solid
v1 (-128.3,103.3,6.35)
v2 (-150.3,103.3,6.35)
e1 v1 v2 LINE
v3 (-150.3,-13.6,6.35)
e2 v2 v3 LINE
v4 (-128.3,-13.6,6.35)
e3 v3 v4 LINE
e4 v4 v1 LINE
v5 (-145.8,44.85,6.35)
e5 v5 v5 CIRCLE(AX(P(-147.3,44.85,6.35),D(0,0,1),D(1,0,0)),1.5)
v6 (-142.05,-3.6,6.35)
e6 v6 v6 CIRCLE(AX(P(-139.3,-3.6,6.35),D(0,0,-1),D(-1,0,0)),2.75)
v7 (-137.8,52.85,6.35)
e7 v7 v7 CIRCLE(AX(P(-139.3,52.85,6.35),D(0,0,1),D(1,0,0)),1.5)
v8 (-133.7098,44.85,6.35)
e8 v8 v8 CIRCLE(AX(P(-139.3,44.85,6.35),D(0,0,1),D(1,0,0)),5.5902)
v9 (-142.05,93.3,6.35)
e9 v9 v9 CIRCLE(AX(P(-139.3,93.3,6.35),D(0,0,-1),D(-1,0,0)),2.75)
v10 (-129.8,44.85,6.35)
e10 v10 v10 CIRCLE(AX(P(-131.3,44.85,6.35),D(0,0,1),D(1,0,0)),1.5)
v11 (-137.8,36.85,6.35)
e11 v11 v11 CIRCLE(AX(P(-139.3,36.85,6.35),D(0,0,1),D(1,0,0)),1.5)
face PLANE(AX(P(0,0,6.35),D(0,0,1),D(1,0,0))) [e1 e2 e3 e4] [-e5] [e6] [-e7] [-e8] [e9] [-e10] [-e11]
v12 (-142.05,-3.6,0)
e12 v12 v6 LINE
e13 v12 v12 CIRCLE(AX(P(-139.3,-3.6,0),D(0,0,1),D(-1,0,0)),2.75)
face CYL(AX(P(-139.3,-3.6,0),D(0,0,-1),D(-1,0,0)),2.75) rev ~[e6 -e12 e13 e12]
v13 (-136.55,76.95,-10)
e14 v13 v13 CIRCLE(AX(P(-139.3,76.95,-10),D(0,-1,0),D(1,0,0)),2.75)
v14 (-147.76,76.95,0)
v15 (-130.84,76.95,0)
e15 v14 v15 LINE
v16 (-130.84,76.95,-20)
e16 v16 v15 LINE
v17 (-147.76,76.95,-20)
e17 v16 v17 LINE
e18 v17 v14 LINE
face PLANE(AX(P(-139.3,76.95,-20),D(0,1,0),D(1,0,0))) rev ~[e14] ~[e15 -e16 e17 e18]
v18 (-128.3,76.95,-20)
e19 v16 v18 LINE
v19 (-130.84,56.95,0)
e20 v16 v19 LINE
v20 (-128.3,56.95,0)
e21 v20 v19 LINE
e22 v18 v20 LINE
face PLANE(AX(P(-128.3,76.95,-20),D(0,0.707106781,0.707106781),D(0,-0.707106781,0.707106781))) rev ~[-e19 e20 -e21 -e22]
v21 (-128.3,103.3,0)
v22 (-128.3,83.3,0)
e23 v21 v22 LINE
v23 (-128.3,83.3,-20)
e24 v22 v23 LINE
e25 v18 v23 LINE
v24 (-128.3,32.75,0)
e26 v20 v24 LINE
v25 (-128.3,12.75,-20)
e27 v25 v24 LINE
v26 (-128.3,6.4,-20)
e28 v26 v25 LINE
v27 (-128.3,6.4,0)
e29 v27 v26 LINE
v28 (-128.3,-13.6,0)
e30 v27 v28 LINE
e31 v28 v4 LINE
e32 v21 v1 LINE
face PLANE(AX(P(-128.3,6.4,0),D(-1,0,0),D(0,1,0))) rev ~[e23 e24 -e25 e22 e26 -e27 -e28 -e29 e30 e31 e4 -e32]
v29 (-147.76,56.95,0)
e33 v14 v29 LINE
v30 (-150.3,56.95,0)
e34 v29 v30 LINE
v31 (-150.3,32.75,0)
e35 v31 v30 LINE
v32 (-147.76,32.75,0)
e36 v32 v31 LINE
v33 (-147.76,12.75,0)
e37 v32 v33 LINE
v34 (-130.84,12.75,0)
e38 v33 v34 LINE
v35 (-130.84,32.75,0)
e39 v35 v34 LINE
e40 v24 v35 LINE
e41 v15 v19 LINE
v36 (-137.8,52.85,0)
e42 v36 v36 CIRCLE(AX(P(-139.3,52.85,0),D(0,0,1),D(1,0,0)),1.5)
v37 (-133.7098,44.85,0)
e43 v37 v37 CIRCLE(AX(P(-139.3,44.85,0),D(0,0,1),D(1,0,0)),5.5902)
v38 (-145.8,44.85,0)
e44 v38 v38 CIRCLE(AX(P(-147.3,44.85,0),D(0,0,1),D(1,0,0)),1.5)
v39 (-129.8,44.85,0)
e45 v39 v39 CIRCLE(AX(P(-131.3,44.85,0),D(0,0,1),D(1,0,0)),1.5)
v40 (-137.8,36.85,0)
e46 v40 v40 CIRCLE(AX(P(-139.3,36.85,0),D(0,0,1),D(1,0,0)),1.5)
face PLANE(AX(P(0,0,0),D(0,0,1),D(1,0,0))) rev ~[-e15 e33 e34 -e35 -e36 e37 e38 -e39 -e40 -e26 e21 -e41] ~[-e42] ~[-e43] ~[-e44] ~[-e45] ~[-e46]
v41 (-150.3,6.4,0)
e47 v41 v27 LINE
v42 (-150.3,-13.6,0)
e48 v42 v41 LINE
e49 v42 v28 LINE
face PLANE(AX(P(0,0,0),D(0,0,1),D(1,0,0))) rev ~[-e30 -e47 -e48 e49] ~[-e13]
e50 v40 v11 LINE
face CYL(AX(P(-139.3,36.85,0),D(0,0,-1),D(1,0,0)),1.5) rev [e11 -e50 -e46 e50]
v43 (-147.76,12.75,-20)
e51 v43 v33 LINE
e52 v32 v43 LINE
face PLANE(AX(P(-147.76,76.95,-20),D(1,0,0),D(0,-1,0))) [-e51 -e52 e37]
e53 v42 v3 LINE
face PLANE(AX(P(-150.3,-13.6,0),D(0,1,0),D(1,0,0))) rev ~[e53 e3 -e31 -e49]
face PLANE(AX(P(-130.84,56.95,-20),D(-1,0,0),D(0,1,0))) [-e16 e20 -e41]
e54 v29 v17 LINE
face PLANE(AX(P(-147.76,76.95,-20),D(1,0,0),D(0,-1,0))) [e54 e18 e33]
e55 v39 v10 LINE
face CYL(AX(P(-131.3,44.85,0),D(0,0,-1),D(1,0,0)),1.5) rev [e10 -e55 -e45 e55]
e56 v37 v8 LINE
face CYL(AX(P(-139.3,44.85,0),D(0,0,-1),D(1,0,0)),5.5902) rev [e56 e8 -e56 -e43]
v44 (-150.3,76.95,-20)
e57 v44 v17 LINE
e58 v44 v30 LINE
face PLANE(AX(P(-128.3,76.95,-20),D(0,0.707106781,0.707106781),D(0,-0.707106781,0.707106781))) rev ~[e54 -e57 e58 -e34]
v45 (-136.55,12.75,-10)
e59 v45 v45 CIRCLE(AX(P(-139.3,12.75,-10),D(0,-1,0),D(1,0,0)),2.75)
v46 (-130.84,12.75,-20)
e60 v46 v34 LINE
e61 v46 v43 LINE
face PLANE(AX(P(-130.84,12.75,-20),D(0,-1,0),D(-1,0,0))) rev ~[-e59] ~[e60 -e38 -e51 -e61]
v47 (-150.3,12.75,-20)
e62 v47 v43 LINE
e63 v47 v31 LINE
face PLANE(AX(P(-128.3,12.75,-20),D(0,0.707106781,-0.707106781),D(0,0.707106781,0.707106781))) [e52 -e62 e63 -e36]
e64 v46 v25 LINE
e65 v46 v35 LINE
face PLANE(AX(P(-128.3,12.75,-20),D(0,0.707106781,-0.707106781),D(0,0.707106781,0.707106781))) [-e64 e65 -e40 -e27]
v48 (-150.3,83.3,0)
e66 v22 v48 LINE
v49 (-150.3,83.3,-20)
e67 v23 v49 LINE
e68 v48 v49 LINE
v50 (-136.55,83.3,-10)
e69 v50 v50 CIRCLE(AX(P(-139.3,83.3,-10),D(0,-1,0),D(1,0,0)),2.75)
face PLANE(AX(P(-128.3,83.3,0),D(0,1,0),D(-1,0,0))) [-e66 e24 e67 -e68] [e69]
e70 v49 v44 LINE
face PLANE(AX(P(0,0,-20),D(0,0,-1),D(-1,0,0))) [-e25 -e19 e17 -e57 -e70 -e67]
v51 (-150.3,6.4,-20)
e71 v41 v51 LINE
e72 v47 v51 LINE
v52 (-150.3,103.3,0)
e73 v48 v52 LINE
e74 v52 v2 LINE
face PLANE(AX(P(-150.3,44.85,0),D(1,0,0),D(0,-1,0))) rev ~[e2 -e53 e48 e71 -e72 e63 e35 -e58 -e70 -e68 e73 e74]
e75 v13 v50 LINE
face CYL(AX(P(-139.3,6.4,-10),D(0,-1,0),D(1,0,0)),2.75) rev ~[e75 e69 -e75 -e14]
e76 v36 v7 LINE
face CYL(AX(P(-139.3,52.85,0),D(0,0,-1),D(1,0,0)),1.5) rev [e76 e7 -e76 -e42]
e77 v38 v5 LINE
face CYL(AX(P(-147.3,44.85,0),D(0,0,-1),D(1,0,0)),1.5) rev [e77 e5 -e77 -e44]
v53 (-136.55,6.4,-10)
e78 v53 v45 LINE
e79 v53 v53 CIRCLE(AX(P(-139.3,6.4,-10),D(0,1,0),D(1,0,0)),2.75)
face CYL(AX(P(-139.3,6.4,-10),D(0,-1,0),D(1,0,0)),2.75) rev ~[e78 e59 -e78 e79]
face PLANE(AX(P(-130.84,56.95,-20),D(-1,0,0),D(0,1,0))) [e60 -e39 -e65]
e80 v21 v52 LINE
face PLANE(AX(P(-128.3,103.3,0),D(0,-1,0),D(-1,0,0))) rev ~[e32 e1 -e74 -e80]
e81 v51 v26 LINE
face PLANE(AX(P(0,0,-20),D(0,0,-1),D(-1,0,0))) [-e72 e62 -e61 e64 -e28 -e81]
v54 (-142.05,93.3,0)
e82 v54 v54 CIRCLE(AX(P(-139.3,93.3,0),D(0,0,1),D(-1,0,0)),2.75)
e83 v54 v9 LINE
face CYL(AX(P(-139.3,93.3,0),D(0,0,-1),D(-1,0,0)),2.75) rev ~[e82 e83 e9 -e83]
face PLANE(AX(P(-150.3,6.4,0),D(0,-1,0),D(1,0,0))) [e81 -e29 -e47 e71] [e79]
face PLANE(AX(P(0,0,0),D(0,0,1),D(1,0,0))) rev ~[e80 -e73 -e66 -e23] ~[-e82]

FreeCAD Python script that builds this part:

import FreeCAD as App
import Part
import Sketcher
Q = App.Units.Quantity


def add_polygon(sketch, points):
    """Adds a closed chain of lines whose ends are joined by coincident constraints."""
    first, n = sketch.GeometryCount, len(points)
    for a, b in zip(points, points[1:] + points[:1]):
        sketch.addGeometry(Part.LineSegment(App.Vector(*a, 0), App.Vector(*b, 0)), False)
    for i in range(n):
        sketch.addConstraint(Sketcher.Constraint("Coincident", first + i, 2, first + (i + 1) % n, 1))

doc = App.newDocument("Part")
body = doc.addObject("PartDesign::Body", "Body")

sketch1 = body.newObject("Sketcher::SketchObject", "Sketch")
sketch1.AttachmentSupport = (doc.getObject("XY_Plane"), [""])
sketch1.MapMode = "FlatFace"
add_polygon(sketch1, [(-128.3, 103.3), (-150.3, 103.3), (-150.3, -13.6), (-128.3, -13.6)])
sketch1.addGeometry(Part.Circle(App.Vector(-139.3, 36.9, 0), App.Vector(0, 0, 1), 1.5), False)
sketch1.addGeometry(Part.Circle(App.Vector(-147.3, 44.9, 0), App.Vector(0, 0, 1), 1.5), False)
sketch1.addGeometry(Part.Circle(App.Vector(-139.3, 44.9, 0), App.Vector(0, 0, 1), 5.6), False)
sketch1.addGeometry(Part.Circle(App.Vector(-131.3, 44.9, 0), App.Vector(0, 0, 1), 1.5), False)
sketch1.addGeometry(Part.Circle(App.Vector(-139.3, 52.9, 0), App.Vector(0, 0, 1), 1.5), False)
sketch1.addConstraint(Sketcher.Constraint("Horizontal", 0))
sketch1.addConstraint(Sketcher.Constraint("Vertical", 1))
sketch1.addConstraint(Sketcher.Constraint("Horizontal", 2))
sketch1.addConstraint(Sketcher.Constraint("Vertical", 3))
sketch1.addConstraint(Sketcher.Constraint("Equal", 4, 5))
sketch1.addConstraint(Sketcher.Constraint("Equal", 5, 7))
sketch1.addConstraint(Sketcher.Constraint("Equal", 7, 8))
sketch1.addConstraint(Sketcher.Constraint("Horizontal", 5, 3, 6, 3))
sketch1.addConstraint(Sketcher.Constraint("Horizontal", 6, 3, 7, 3))
sketch1.addConstraint(Sketcher.Constraint("Vertical", 4, 3, 6, 3))
sketch1.addConstraint(Sketcher.Constraint("Vertical", 6, 3, 8, 3))
sketch1.addConstraint(Sketcher.Constraint("Diameter", 4, Q("3 mm")))
sketch1.addConstraint(Sketcher.Constraint("DistanceX", 0, 2, 0, 1, Q("22 mm")))
sketch1.addConstraint(Sketcher.Constraint("DistanceY", 1, 2, 1, 1, Q("116.9 mm")))
sketch1.addConstraint(Sketcher.Constraint("DistanceX", 5, 3, 4, 3, Q("8 mm")))
sketch1.addConstraint(Sketcher.Constraint("DistanceY", 4, 3, 5, 3, Q("8 mm")))
sketch1.addConstraint(Sketcher.Constraint("DistanceX", 6, 3, 7, 3, Q("8 mm")))
sketch1.addConstraint(Sketcher.Constraint("DistanceY", 6, 3, 8, 3, Q("8 mm")))
sketch1.addConstraint(Sketcher.Constraint("DistanceX", 0, 2, 8, 3, Q("11 mm")))
sketch1.addConstraint(Sketcher.Constraint("Diameter", 6, Q("11.1804 mm")))
sketch1.addConstraint(Sketcher.Constraint("DistanceX", 4, 3, -1, 1, Q("139.3 mm")))
sketch1.addConstraint(Sketcher.Constraint("DistanceY", -1, 1, 0, 2, Q("103.3 mm")))
sketch1.addConstraint(Sketcher.Constraint("DistanceY", -1, 1, 4, 3, Q("36.85 mm")))
pad1 = body.newObject("PartDesign::Pad", "Pad")
pad1.Profile = sketch1
pad1.Length = 6.35

sketch2 = body.newObject("Sketcher::SketchObject", "Sketch001")
sketch2.AttachmentSupport = (doc.getObject("XY_Plane"), [""])
sketch2.MapMode = "FlatFace"
add_polygon(sketch2, [(-128, 13), (-128, 6), (-150, 6), (-150, 13)])
add_polygon(sketch2, [(-128, 83), (-128, 77), (-150, 77), (-150, 83)])
sketch2.addConstraint(Sketcher.Constraint("Vertical", 0))
sketch2.addConstraint(Sketcher.Constraint("Horizontal", 1))
sketch2.addConstraint(Sketcher.Constraint("Vertical", 2))
sketch2.addConstraint(Sketcher.Constraint("Horizontal", 3))
sketch2.addConstraint(Sketcher.Constraint("Vertical", 4))
sketch2.addConstraint(Sketcher.Constraint("Horizontal", 5))
sketch2.addConstraint(Sketcher.Constraint("Vertical", 6))
sketch2.addConstraint(Sketcher.Constraint("Horizontal", 7))
sketch2.addConstraint(Sketcher.Constraint("Vertical", 3, 2, 4, 2))
sketch2.addConstraint(Sketcher.Constraint("Vertical", 2, 2, 5, 2))
sketch2.addConstraint(Sketcher.Constraint("Equal", 2, 4))
sketch2.addConstraint(Sketcher.Constraint("DistanceY", 0, 2, 0, 1, Q("6.35 mm")))
sketch2.addConstraint(Sketcher.Constraint("DistanceX", 1, 2, 1, 1, Q("22 mm")))
sketch2.addConstraint(Sketcher.Constraint("DistanceX", 0, 2, -1, 1, Q("128.3 mm")))
sketch2.addConstraint(Sketcher.Constraint("DistanceY", -1, 1, 0, 2, Q("6.4 mm")))
sketch2.addConstraint(Sketcher.Constraint("DistanceY", -1, 1, 6, 2, Q("83.3 mm")))
pad2 = body.newObject("PartDesign::Pad", "Pad001")
pad2.Profile = sketch2
pad2.Length = 20
pad2.Reversed = True

sketch3 = body.newObject("Sketcher::SketchObject", "Sketch002")
sketch3.AttachmentSupport = (doc.getObject("YZ_Plane"), [""])
sketch3.MapMode = "FlatFace"
sketch3.AttachmentOffset = App.Placement(App.Vector(0, 0, -128.3), App.Rotation())
add_polygon(sketch3, [(33, 0), (13, 0), (13, -20)])
add_polygon(sketch3, [(77, 0), (57, 0), (77, -20)])
sketch3.addConstraint(Sketcher.Constraint("Horizontal", 0))
sketch3.addConstraint(Sketcher.Constraint("Vertical", 1))
sketch3.addConstraint(Sketcher.Constraint("Horizontal", 3))
sketch3.addConstraint(Sketcher.Constraint("Vertical", 5))
sketch3.addConstraint(Sketcher.Constraint("PointOnObject", 0, 2, -1))
sketch3.addConstraint(Sketcher.Constraint("PointOnObject", 3, 2, -1))
sketch3.addConstraint(Sketcher.Constraint("Perpendicular", 2, 4))
sketch3.addConstraint(Sketcher.Constraint("Horizontal", 1, 2, 4, 2))
sketch3.addConstraint(Sketcher.Constraint("Equal", 0, 3))
sketch3.addConstraint(Sketcher.Constraint("DistanceX", 0, 2, 0, 1, Q("20 mm")))
sketch3.addConstraint(Sketcher.Constraint("DistanceX", 2, 2, 3, 2, Q("24.2 mm")))
sketch3.addConstraint(Sketcher.Constraint("DistanceX", -1, 1, 0, 2, Q("12.75 mm")))
pad3 = body.newObject("PartDesign::Pad", "Pad002")
pad3.Profile = sketch3
pad3.Length = 22
pad3.Reversed = True

sketch4 = body.newObject("Sketcher::SketchObject", "Sketch003")
sketch4.AttachmentSupport = (doc.getObject("XY_Plane"), [""])
sketch4.MapMode = "FlatFace"
sketch4.AttachmentOffset = App.Placement(App.Vector(0, 0, -20), App.Rotation())
add_polygon(sketch4, [(-131, 77), (-131, 13), (-148, 13), (-148, 77)])
sketch4.addConstraint(Sketcher.Constraint("Vertical", 0))
sketch4.addConstraint(Sketcher.Constraint("Horizontal", 1))
sketch4.addConstraint(Sketcher.Constraint("Vertical", 2))
sketch4.addConstraint(Sketcher.Constraint("Horizontal", 3))
sketch4.addConstraint(Sketcher.Constraint("DistanceY", 0, 2, 0, 1, Q("64.2 mm")))
sketch4.addConstraint(Sketcher.Constraint("DistanceX", 1, 2, 1, 1, Q("16.92 mm")))
sketch4.addConstraint(Sketcher.Constraint("DistanceX", 0, 2, -1, 1, Q("130.84 mm")))
sketch4.addConstraint(Sketcher.Constraint("DistanceY", -1, 1, 0, 2, Q("12.75 mm")))
pocket1 = body.newObject("PartDesign::Pocket", "Pocket")
pocket1.Profile = sketch4
pocket1.Length = 20
pocket1.Reversed = True

sketch5 = body.newObject("Sketcher::SketchObject", "Sketch004")
sketch5.AttachmentSupport = (doc.getObject("XZ_Plane"), [""])
sketch5.MapMode = "FlatFace"
sketch5.AttachmentOffset = App.Placement(App.Vector(0, 0, -6.4), App.Rotation())
sketch5.addGeometry(Part.Circle(App.Vector(-139.3, -10, 0), App.Vector(0, 0, 1), 2.8), False)
sketch5.addConstraint(Sketcher.Constraint("Diameter", 0, Q("5.5 mm")))
sketch5.addConstraint(Sketcher.Constraint("DistanceY", 0, 3, -1, 1, Q("10 mm")))
sketch5.addConstraint(Sketcher.Constraint("DistanceX", 0, 3, -1, 1, Q("139.3 mm")))
pocket2 = body.newObject("PartDesign::Pocket", "Pocket001")
pocket2.Profile = sketch5
pocket2.Type = "ThroughAll"

sketch6 = body.newObject("Sketcher::SketchObject", "Sketch005")
sketch6.AttachmentSupport = (doc.getObject("XY_Plane"), [""])
sketch6.MapMode = "FlatFace"
sketch6.addGeometry(Part.Circle(App.Vector(-139.3, 93.3, 0), App.Vector(0, 0, 1), 2.8), False)
sketch6.addGeometry(Part.Circle(App.Vector(-139.3, -3.6, 0), App.Vector(0, 0, 1), 2.8), False)
sketch6.addConstraint(Sketcher.Constraint("Equal", 0, 1))
sketch6.addConstraint(Sketcher.Constraint("Vertical", 0, 3, 1, 3))
sketch6.addConstraint(Sketcher.Constraint("Diameter", 0, Q("5.5 mm")))
sketch6.addConstraint(Sketcher.Constraint("DistanceX", 0, 3, -1, 1, Q("139.3 mm")))
sketch6.addConstraint(Sketcher.Constraint("DistanceY", -1, 1, 0, 3, Q("93.3 mm")))
sketch6.addConstraint(Sketcher.Constraint("DistanceY", 1, 3, -1, 1, Q("3.6 mm")))
pocket3 = body.newObject("PartDesign::Pocket", "Pocket002")
pocket3.Profile = sketch6
pocket3.Type = "ThroughAll"
pocket3.Reversed = True

doc.recompute()
